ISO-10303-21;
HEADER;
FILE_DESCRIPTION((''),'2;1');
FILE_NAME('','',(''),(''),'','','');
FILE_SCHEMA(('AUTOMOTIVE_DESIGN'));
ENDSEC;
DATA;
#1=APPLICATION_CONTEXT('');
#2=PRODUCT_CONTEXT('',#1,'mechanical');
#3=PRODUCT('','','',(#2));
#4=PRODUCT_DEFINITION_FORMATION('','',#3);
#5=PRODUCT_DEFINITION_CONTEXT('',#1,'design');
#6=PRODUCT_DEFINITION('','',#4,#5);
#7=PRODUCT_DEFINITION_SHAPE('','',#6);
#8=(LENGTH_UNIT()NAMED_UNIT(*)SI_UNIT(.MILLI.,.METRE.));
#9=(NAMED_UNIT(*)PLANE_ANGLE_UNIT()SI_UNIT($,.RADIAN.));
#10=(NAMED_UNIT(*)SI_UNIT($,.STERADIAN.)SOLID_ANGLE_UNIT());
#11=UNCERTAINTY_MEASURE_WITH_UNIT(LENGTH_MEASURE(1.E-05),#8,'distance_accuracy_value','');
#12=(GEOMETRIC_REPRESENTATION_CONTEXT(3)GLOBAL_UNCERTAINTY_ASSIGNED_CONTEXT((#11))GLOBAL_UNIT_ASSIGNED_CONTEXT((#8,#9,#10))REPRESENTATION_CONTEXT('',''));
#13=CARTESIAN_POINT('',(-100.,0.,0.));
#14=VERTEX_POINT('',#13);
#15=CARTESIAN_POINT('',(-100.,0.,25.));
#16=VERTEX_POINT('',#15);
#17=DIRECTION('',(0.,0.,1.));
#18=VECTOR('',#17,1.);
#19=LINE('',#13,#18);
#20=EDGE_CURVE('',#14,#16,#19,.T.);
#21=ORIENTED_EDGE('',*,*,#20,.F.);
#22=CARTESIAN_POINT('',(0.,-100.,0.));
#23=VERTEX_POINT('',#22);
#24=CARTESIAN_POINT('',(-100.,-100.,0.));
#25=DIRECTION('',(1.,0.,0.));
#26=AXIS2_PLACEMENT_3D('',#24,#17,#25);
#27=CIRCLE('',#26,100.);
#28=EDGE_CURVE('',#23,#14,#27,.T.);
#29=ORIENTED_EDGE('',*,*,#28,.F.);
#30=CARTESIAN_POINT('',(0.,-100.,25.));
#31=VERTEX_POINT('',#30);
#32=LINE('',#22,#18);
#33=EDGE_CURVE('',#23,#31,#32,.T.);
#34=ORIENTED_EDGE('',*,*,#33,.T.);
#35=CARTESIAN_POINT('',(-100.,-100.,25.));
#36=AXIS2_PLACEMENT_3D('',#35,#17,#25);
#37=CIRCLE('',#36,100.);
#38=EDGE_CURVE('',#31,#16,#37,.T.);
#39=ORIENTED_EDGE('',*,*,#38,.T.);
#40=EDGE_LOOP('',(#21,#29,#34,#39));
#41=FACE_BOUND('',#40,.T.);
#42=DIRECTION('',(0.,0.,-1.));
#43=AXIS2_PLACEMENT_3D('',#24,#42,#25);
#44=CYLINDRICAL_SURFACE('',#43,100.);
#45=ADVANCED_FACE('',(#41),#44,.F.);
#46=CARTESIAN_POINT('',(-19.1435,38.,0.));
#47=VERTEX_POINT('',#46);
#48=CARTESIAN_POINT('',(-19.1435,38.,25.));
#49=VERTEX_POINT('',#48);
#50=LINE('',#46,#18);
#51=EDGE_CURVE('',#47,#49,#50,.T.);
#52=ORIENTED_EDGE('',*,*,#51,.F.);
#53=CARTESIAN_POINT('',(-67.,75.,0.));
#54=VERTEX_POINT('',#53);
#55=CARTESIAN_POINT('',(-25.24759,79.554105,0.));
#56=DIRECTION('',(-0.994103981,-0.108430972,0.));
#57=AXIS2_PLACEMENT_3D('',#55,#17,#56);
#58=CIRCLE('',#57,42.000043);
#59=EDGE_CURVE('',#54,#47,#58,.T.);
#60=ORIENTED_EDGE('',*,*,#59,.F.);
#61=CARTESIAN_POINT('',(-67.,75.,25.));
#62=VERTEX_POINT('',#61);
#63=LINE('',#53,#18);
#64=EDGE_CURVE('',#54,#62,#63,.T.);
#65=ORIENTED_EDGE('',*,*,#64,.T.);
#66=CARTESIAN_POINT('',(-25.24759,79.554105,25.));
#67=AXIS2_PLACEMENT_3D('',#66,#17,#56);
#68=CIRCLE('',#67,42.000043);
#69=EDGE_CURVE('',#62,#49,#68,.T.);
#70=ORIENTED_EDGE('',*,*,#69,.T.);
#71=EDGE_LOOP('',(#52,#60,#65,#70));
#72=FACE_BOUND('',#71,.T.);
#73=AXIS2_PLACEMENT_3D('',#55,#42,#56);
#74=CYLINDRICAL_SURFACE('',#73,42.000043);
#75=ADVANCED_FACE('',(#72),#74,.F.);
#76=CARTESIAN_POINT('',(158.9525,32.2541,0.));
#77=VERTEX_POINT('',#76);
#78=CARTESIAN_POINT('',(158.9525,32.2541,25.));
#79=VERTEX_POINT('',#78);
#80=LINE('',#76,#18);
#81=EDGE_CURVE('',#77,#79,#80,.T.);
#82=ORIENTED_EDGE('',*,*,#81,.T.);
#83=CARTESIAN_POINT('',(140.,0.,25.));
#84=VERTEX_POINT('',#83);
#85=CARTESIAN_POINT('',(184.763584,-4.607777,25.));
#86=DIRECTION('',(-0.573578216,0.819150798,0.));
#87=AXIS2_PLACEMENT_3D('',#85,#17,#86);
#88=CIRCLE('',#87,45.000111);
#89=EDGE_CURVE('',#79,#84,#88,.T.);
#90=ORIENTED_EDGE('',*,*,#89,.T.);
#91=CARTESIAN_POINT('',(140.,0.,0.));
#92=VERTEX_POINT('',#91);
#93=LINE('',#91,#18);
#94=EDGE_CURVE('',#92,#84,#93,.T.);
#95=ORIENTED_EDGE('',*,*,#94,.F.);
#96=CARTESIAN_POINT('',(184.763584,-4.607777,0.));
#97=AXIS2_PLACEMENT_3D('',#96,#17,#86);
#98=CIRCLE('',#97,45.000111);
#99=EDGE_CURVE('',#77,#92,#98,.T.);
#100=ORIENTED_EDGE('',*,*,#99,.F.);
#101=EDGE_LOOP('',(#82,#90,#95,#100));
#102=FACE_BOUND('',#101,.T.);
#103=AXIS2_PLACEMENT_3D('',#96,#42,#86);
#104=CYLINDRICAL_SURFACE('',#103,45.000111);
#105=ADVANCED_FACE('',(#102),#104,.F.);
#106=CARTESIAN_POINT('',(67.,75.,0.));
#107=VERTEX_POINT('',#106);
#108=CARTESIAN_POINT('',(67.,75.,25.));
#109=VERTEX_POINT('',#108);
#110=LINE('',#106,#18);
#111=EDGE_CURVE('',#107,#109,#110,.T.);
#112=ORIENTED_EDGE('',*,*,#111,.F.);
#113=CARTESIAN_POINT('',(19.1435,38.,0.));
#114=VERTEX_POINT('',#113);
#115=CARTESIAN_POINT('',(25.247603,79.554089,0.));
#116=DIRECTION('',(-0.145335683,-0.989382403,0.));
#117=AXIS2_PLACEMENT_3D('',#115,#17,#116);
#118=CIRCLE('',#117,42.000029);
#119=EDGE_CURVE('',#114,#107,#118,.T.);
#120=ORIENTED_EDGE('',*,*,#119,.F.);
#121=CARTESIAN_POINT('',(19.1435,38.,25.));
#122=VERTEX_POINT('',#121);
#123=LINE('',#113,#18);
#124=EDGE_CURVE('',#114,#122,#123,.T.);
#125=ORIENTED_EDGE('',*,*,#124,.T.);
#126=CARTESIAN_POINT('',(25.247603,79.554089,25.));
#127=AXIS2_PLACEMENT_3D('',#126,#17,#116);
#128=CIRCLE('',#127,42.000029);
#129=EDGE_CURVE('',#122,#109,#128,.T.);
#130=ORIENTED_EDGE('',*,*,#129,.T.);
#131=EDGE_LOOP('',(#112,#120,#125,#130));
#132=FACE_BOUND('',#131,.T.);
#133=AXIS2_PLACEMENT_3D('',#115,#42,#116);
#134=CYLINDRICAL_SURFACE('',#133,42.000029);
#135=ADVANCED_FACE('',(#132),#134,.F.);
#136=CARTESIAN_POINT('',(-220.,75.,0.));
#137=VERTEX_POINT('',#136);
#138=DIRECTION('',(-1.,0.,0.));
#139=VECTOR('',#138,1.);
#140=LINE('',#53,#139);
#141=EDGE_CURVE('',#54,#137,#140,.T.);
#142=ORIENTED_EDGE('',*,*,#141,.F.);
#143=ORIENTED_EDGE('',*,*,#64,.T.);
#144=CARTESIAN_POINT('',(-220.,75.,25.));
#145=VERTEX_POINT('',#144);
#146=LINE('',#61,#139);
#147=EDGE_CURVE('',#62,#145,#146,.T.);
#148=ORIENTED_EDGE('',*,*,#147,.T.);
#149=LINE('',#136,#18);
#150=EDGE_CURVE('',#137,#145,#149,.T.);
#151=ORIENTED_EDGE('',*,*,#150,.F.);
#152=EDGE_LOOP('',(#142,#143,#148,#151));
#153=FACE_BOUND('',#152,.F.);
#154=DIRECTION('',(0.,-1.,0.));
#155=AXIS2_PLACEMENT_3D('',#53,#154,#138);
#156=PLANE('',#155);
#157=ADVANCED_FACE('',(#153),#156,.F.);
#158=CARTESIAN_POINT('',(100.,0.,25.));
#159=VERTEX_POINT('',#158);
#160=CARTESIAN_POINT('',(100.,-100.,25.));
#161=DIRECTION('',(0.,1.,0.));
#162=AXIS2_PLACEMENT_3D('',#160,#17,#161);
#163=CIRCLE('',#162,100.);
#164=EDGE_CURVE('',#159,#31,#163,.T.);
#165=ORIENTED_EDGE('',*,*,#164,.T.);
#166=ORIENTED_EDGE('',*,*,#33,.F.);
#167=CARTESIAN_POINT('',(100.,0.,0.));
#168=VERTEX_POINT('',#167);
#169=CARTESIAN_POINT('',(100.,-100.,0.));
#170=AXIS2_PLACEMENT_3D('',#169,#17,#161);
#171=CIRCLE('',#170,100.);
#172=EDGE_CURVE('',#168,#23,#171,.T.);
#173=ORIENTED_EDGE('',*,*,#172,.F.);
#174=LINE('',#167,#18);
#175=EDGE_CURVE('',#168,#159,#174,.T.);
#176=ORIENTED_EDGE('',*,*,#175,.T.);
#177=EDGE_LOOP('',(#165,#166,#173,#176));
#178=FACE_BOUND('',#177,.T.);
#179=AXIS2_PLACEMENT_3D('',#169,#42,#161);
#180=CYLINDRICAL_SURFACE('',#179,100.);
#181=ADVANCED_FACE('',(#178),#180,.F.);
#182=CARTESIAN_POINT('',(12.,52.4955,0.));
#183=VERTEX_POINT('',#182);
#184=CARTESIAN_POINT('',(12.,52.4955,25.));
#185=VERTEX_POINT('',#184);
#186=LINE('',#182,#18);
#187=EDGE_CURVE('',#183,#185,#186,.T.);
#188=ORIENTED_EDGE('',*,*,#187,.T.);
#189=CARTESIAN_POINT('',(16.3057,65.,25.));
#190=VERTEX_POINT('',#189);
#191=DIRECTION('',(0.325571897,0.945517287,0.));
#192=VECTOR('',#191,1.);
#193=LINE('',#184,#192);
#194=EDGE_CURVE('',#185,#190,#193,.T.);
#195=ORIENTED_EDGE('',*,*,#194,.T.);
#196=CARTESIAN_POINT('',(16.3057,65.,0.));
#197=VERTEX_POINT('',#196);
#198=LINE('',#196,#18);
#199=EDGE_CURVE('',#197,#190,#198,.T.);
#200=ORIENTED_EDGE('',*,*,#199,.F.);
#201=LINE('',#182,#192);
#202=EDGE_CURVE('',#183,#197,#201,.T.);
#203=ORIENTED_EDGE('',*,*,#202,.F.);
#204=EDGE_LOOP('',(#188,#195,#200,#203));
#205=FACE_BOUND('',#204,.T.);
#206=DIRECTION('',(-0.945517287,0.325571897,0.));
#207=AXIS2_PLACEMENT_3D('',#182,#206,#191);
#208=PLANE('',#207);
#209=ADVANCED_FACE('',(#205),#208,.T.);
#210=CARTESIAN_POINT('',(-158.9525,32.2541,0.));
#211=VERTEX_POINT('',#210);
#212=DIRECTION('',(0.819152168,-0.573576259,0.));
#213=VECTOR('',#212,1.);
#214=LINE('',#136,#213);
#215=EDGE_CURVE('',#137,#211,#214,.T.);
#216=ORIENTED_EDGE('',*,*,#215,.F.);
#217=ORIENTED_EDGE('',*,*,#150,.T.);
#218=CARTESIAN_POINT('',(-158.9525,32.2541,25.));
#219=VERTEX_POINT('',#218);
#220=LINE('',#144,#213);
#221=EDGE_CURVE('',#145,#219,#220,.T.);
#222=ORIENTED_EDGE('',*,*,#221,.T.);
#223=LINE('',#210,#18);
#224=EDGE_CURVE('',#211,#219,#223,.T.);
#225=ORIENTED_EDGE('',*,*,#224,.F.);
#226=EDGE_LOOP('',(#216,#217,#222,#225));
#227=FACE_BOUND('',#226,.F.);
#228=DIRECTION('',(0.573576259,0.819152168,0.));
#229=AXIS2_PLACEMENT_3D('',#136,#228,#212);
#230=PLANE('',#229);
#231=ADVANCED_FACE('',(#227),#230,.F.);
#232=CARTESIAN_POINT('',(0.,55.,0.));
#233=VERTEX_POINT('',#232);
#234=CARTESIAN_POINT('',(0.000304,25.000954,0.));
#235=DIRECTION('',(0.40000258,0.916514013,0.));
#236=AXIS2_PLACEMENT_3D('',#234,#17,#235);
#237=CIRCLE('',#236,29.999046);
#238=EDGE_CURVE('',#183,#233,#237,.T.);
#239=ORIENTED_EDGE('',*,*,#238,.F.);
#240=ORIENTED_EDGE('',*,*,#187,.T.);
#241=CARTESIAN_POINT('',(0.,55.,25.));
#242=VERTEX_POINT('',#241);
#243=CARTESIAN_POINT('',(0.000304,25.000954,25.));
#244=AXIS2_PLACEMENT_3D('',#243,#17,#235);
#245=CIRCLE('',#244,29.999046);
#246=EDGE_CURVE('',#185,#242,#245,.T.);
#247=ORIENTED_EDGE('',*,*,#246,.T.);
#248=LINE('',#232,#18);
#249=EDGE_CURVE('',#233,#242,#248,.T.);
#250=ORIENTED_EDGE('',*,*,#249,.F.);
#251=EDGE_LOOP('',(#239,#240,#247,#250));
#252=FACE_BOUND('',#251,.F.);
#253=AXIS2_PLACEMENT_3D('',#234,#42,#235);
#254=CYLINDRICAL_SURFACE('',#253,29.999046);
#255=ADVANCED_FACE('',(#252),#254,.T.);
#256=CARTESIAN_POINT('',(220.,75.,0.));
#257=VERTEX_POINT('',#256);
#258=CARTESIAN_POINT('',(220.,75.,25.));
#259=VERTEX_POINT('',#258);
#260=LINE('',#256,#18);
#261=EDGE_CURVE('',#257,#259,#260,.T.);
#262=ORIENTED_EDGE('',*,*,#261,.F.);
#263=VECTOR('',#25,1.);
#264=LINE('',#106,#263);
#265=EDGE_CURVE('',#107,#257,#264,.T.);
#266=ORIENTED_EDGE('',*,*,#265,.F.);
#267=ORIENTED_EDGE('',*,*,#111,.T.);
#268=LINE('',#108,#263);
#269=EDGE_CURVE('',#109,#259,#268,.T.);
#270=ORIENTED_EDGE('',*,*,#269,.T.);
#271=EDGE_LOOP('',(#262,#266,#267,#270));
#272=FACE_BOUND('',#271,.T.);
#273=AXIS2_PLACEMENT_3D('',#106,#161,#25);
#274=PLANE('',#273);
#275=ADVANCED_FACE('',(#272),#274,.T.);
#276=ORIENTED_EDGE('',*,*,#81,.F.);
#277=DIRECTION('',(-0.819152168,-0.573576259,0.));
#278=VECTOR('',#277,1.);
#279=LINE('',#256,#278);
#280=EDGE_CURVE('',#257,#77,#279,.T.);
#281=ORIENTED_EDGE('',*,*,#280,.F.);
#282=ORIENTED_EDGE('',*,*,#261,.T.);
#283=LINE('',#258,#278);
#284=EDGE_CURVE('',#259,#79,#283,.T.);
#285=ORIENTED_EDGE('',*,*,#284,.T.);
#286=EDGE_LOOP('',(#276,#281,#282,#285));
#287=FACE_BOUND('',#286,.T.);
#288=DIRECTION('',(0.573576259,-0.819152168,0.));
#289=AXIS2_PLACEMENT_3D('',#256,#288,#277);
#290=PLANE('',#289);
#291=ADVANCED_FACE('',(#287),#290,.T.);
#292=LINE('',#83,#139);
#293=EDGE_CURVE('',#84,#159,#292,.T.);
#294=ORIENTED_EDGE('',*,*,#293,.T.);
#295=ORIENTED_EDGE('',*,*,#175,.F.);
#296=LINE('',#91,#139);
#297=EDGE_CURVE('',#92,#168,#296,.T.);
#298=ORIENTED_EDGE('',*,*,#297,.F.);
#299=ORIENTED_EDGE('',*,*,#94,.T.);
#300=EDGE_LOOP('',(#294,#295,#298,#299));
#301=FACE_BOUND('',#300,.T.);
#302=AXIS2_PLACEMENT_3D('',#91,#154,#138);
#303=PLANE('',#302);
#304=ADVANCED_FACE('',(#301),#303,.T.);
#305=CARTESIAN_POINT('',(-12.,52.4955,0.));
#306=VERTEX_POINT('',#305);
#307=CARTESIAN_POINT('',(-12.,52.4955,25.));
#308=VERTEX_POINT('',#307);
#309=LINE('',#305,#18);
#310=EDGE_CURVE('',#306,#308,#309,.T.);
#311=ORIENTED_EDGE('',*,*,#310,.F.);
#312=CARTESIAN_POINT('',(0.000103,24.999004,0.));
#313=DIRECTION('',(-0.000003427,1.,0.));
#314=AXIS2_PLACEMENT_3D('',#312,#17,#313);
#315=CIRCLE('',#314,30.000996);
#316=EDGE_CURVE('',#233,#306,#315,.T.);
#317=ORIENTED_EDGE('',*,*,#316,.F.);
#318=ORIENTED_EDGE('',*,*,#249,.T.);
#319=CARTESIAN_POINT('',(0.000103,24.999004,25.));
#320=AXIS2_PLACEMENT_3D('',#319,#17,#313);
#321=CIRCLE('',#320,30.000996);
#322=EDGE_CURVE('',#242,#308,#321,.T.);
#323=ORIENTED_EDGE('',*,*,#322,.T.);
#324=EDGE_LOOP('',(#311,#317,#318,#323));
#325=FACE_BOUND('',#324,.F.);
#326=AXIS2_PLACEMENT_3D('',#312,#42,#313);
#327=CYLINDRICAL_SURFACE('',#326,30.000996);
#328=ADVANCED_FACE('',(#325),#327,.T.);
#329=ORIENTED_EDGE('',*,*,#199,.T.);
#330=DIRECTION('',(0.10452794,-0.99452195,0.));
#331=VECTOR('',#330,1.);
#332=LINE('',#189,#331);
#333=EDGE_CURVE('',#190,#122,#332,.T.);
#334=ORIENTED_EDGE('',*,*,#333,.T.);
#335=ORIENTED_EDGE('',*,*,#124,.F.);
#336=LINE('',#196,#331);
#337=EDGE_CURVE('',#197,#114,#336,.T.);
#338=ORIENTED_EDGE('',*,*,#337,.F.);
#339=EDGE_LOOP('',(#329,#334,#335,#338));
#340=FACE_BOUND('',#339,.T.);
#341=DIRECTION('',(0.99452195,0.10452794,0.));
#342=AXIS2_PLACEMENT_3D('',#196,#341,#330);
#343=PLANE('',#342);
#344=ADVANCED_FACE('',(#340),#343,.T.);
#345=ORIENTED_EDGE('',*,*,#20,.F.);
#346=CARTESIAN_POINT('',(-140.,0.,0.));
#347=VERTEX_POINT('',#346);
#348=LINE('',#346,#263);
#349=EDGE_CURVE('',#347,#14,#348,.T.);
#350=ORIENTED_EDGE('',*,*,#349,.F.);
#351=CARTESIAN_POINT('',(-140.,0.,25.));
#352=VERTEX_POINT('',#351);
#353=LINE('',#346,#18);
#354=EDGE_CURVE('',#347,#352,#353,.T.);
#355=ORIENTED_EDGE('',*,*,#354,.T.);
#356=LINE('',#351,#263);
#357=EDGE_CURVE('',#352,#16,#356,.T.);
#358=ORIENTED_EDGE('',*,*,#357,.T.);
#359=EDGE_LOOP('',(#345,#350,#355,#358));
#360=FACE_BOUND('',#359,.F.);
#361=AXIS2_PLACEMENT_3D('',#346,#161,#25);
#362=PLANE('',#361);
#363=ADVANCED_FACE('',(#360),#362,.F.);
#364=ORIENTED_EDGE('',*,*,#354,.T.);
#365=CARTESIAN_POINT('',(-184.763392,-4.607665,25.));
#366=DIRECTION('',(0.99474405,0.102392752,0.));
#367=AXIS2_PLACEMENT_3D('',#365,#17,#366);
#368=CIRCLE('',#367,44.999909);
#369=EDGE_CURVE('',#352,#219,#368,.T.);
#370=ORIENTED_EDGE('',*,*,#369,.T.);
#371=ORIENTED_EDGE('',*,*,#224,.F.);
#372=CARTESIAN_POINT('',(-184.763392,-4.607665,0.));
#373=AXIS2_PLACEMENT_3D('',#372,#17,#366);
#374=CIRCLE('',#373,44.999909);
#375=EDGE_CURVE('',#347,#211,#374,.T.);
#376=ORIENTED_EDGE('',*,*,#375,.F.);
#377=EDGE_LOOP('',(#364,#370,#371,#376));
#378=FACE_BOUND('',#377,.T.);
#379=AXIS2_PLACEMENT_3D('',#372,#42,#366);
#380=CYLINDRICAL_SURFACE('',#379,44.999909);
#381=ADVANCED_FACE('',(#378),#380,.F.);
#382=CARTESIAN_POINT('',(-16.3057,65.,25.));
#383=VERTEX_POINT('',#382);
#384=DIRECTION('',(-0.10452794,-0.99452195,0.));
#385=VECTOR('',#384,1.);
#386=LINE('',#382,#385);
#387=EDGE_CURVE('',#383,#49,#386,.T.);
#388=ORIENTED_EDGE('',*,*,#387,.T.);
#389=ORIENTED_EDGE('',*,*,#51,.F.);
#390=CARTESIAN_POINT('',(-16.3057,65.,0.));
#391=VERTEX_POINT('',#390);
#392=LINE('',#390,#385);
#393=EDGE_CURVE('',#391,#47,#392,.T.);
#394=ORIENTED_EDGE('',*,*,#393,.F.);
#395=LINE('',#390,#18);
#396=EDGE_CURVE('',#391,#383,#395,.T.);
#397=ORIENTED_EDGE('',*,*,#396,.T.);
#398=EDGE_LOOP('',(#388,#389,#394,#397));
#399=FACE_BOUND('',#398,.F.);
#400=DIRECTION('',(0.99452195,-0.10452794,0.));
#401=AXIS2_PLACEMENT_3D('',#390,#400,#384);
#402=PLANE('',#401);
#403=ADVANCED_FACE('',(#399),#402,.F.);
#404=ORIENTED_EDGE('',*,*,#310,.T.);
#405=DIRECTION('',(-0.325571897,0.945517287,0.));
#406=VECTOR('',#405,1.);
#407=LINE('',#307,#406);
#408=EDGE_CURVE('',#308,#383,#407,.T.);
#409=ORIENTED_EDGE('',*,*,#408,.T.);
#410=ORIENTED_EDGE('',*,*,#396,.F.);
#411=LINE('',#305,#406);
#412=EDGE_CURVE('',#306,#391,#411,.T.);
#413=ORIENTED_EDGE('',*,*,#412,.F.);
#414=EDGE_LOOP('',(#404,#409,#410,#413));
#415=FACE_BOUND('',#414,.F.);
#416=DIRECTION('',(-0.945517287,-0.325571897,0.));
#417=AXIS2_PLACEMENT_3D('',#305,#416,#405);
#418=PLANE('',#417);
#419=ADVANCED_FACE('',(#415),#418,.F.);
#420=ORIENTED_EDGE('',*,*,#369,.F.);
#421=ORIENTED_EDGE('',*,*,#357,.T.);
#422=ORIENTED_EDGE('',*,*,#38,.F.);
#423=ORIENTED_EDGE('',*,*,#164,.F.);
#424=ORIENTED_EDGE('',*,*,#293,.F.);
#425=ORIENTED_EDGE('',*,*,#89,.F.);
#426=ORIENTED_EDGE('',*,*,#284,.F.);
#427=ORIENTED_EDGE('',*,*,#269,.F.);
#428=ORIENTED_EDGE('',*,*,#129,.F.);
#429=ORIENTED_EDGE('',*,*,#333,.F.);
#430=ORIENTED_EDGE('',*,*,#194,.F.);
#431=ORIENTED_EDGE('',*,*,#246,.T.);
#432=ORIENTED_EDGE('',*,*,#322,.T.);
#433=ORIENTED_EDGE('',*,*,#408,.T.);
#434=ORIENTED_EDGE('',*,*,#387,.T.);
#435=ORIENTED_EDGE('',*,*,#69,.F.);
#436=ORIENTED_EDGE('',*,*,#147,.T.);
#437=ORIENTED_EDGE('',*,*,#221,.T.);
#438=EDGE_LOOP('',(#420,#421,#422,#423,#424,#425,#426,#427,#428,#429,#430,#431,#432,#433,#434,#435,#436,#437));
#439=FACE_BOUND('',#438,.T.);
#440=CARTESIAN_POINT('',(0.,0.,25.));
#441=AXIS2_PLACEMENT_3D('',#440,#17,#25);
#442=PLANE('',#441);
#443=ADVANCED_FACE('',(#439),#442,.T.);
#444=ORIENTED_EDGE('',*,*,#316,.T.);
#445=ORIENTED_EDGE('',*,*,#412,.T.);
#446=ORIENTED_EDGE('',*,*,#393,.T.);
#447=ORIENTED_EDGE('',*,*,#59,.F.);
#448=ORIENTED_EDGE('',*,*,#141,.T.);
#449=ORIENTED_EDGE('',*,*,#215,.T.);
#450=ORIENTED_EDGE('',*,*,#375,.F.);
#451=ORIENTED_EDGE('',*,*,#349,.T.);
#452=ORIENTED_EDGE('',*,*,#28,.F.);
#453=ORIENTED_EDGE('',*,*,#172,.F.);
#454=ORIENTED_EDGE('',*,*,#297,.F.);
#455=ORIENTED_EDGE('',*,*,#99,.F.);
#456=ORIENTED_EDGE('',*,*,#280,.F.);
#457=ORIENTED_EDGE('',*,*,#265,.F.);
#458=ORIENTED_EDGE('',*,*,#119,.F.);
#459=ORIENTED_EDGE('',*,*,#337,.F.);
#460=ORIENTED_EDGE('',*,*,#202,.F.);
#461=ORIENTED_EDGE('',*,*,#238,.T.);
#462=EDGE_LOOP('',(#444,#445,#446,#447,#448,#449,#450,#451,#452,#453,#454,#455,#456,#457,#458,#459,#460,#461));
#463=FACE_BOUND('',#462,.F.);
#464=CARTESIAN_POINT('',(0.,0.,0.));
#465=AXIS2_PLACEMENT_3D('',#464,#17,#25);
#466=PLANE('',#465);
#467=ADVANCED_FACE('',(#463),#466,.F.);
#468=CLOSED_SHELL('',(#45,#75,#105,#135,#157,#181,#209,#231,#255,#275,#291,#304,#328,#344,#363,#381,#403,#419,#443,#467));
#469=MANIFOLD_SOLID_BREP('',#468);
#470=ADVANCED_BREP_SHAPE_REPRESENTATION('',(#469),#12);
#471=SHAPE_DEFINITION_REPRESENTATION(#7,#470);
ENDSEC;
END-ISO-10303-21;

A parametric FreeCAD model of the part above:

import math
import FreeCAD as App
import Part
import Sketcher
from FreeCAD import Vector
Q = App.Units.Quantity

doc = App.newDocument("Part")
body = doc.addObject("PartDesign::Body", "Body")

# Sketch on XY plane
sketch1 = body.newObject("Sketcher::SketchObject", "Sketch")
sketch1.AttachmentSupport = (doc.getObject("XY_Plane"), [""])
sketch1.MapMode = "FlatFace"
sketch1.addGeometry([
    Part.ArcOfCircle(Part.Circle(Vector(-25, 80, 0), Vector(0, 0, 1), 42), math.radians(-174), math.radians(-82)),  # 0
    Part.LineSegment(Vector(-67, 75, 0), Vector(-220, 75, 0)),  # 1
    Part.LineSegment(Vector(-220, 75, 0), Vector(-159, 32, 0)),  # 2
    Part.ArcOfCircle(Part.Circle(Vector(-185, -5, 0), Vector(0, 0, 1), 45), math.radians(6), math.radians(55)),  # 3
    Part.LineSegment(Vector(-140, 0, 0), Vector(-100, 0, 0)),  # 4
    Part.ArcOfCircle(Part.Circle(Vector(-100, -100, 0), Vector(0, 0, 1), 100), math.radians(0), math.radians(90)),  # 5
    Part.ArcOfCircle(Part.Circle(Vector(100, -100, 0), Vector(0, 0, 1), 100), math.radians(90), math.radians(180)),  # 6
    Part.LineSegment(Vector(100, 0, 0), Vector(140, 0, 0)),  # 7
    Part.ArcOfCircle(Part.Circle(Vector(185, -5, 0), Vector(0, 0, 1), 45), math.radians(125), math.radians(174)),  # 8
    Part.LineSegment(Vector(159, 32, 0), Vector(220, 75, 0)),  # 9
    Part.LineSegment(Vector(220, 75, 0), Vector(67, 75, 0)),  # 10
    Part.ArcOfCircle(Part.Circle(Vector(25, 80, 0), Vector(0, 0, 1), 42), math.radians(-98), math.radians(-6)),  # 11
    Part.LineSegment(Vector(19, 38, 0), Vector(16, 65, 0)),  # 12
    Part.LineSegment(Vector(16, 65, 0), Vector(12, 52, 0)),  # 13
    Part.ArcOfCircle(Part.Circle(Vector(0, 25, 0), Vector(0, 0, 1), 30), math.radians(66), math.radians(90)),  # 14
    Part.ArcOfCircle(Part.Circle(Vector(0, 25, 0), Vector(0, 0, 1), 30), math.radians(90), math.radians(114)),  # 15
    Part.LineSegment(Vector(-12, 52, 0), Vector(-16, 65, 0)),  # 16
    Part.LineSegment(Vector(-16, 65, 0), Vector(-19, 38, 0)),  # 17
], False)
sketch1.addConstraint([
    Sketcher.Constraint("Coincident", 0, 1, 1, 1),
    Sketcher.Constraint("Coincident", 1, 2, 2, 1),
    Sketcher.Constraint("Tangent", 2, 2, 3, 2),
    Sketcher.Constraint("Coincident", 3, 1, 4, 1),
    Sketcher.Constraint("Tangent", 4, 2, 5, 2),
    Sketcher.Constraint("Tangent", 5, 1, 6, 2),
    Sketcher.Constraint("Tangent", 6, 1, 7, 1),
    Sketcher.Constraint("Coincident", 7, 2, 8, 2),
    Sketcher.Constraint("Tangent", 8, 1, 9, 1),
    Sketcher.Constraint("Coincident", 9, 2, 10, 1),
    Sketcher.Constraint("Coincident", 10, 2, 11, 2),
    Sketcher.Constraint("Coincident", 11, 1, 12, 1),
    Sketcher.Constraint("Coincident", 12, 2, 13, 1),
    Sketcher.Constraint("Coincident", 13, 2, 14, 1),
    Sketcher.Constraint("Tangent", 14, 2, 15, 1),
    Sketcher.Constraint("Coincident", 15, 2, 16, 1),
    Sketcher.Constraint("Coincident", 16, 2, 17, 1),
    Sketcher.Constraint("Coincident", 17, 2, 0, 2),
    Sketcher.Constraint("Horizontal", 1),
    Sketcher.Constraint("Horizontal", 4),
    Sketcher.Constraint("Horizontal", 7),
    Sketcher.Constraint("Horizontal", 10),
    Sketcher.Constraint("Equal", 5, 6),
    Sketcher.Constraint("Equal", 3, 8),
    Sketcher.Constraint("Equal", 0, 11),
    Sketcher.Constraint("Equal", 14, 15),
    Sketcher.Constraint("Symmetric", 4, 2, 6, 1, -1, 1),
    Sketcher.Constraint("Symmetric", 3, 3, 8, 3, -2),
    Sketcher.Constraint("Symmetric", 0, 3, 11, 3, -2),
    Sketcher.Constraint("Symmetric", 1, 2, 9, 2, -2),
    Sketcher.Constraint("Symmetric", 13, 2, 15, 2, -2),
    Sketcher.Constraint("Symmetric", 12, 2, 16, 2, -2),
    Sketcher.Constraint("PointOnObject", 3, 1, -1),
    Sketcher.Constraint("PointOnObject", 14, 2, -2),
    Sketcher.Constraint("Horizontal", 11, 1, 17, 2),
    Sketcher.Constraint("Radius", 0, 42.0),
    Sketcher.Constraint("Radius", 3, 45.0),
    Sketcher.Constraint("Radius", 5, 100.0),
    Sketcher.Constraint("Radius", 14, 30.0),
    Sketcher.Constraint("Angle", 2, Q("-35 deg")),
    Sketcher.Constraint("DistanceY", -1, 1, 14, 3, 25.0),
    Sketcher.Constraint("DistanceX", 0, 1, -1, 1, 67.0),
    Sketcher.Constraint("DistanceY", -1, 1, 0, 1, 75.0),
    Sketcher.Constraint("DistanceX", 1, 2, -1, 1, 220.0),
    Sketcher.Constraint("DistanceX", 3, 1, -1, 1, 140.0),
    Sketcher.Constraint("DistanceX", -1, 1, 13, 2, 12.0),
    Sketcher.Constraint("DistanceY", 11, 1, 10, 2, 37.0),
    Sketcher.Constraint("DistanceY", 14, 2, 12, 2, 10.0),
    Sketcher.Constraint("Angle", 12, Q("96 deg")),
    Sketcher.Constraint("Angle", 13, Q("-109.0002 deg")),
])
pad1 = body.newObject("PartDesign::Pad", "Pad")
pad1.Profile = sketch1
pad1.Length = 25

doc.recompute()
